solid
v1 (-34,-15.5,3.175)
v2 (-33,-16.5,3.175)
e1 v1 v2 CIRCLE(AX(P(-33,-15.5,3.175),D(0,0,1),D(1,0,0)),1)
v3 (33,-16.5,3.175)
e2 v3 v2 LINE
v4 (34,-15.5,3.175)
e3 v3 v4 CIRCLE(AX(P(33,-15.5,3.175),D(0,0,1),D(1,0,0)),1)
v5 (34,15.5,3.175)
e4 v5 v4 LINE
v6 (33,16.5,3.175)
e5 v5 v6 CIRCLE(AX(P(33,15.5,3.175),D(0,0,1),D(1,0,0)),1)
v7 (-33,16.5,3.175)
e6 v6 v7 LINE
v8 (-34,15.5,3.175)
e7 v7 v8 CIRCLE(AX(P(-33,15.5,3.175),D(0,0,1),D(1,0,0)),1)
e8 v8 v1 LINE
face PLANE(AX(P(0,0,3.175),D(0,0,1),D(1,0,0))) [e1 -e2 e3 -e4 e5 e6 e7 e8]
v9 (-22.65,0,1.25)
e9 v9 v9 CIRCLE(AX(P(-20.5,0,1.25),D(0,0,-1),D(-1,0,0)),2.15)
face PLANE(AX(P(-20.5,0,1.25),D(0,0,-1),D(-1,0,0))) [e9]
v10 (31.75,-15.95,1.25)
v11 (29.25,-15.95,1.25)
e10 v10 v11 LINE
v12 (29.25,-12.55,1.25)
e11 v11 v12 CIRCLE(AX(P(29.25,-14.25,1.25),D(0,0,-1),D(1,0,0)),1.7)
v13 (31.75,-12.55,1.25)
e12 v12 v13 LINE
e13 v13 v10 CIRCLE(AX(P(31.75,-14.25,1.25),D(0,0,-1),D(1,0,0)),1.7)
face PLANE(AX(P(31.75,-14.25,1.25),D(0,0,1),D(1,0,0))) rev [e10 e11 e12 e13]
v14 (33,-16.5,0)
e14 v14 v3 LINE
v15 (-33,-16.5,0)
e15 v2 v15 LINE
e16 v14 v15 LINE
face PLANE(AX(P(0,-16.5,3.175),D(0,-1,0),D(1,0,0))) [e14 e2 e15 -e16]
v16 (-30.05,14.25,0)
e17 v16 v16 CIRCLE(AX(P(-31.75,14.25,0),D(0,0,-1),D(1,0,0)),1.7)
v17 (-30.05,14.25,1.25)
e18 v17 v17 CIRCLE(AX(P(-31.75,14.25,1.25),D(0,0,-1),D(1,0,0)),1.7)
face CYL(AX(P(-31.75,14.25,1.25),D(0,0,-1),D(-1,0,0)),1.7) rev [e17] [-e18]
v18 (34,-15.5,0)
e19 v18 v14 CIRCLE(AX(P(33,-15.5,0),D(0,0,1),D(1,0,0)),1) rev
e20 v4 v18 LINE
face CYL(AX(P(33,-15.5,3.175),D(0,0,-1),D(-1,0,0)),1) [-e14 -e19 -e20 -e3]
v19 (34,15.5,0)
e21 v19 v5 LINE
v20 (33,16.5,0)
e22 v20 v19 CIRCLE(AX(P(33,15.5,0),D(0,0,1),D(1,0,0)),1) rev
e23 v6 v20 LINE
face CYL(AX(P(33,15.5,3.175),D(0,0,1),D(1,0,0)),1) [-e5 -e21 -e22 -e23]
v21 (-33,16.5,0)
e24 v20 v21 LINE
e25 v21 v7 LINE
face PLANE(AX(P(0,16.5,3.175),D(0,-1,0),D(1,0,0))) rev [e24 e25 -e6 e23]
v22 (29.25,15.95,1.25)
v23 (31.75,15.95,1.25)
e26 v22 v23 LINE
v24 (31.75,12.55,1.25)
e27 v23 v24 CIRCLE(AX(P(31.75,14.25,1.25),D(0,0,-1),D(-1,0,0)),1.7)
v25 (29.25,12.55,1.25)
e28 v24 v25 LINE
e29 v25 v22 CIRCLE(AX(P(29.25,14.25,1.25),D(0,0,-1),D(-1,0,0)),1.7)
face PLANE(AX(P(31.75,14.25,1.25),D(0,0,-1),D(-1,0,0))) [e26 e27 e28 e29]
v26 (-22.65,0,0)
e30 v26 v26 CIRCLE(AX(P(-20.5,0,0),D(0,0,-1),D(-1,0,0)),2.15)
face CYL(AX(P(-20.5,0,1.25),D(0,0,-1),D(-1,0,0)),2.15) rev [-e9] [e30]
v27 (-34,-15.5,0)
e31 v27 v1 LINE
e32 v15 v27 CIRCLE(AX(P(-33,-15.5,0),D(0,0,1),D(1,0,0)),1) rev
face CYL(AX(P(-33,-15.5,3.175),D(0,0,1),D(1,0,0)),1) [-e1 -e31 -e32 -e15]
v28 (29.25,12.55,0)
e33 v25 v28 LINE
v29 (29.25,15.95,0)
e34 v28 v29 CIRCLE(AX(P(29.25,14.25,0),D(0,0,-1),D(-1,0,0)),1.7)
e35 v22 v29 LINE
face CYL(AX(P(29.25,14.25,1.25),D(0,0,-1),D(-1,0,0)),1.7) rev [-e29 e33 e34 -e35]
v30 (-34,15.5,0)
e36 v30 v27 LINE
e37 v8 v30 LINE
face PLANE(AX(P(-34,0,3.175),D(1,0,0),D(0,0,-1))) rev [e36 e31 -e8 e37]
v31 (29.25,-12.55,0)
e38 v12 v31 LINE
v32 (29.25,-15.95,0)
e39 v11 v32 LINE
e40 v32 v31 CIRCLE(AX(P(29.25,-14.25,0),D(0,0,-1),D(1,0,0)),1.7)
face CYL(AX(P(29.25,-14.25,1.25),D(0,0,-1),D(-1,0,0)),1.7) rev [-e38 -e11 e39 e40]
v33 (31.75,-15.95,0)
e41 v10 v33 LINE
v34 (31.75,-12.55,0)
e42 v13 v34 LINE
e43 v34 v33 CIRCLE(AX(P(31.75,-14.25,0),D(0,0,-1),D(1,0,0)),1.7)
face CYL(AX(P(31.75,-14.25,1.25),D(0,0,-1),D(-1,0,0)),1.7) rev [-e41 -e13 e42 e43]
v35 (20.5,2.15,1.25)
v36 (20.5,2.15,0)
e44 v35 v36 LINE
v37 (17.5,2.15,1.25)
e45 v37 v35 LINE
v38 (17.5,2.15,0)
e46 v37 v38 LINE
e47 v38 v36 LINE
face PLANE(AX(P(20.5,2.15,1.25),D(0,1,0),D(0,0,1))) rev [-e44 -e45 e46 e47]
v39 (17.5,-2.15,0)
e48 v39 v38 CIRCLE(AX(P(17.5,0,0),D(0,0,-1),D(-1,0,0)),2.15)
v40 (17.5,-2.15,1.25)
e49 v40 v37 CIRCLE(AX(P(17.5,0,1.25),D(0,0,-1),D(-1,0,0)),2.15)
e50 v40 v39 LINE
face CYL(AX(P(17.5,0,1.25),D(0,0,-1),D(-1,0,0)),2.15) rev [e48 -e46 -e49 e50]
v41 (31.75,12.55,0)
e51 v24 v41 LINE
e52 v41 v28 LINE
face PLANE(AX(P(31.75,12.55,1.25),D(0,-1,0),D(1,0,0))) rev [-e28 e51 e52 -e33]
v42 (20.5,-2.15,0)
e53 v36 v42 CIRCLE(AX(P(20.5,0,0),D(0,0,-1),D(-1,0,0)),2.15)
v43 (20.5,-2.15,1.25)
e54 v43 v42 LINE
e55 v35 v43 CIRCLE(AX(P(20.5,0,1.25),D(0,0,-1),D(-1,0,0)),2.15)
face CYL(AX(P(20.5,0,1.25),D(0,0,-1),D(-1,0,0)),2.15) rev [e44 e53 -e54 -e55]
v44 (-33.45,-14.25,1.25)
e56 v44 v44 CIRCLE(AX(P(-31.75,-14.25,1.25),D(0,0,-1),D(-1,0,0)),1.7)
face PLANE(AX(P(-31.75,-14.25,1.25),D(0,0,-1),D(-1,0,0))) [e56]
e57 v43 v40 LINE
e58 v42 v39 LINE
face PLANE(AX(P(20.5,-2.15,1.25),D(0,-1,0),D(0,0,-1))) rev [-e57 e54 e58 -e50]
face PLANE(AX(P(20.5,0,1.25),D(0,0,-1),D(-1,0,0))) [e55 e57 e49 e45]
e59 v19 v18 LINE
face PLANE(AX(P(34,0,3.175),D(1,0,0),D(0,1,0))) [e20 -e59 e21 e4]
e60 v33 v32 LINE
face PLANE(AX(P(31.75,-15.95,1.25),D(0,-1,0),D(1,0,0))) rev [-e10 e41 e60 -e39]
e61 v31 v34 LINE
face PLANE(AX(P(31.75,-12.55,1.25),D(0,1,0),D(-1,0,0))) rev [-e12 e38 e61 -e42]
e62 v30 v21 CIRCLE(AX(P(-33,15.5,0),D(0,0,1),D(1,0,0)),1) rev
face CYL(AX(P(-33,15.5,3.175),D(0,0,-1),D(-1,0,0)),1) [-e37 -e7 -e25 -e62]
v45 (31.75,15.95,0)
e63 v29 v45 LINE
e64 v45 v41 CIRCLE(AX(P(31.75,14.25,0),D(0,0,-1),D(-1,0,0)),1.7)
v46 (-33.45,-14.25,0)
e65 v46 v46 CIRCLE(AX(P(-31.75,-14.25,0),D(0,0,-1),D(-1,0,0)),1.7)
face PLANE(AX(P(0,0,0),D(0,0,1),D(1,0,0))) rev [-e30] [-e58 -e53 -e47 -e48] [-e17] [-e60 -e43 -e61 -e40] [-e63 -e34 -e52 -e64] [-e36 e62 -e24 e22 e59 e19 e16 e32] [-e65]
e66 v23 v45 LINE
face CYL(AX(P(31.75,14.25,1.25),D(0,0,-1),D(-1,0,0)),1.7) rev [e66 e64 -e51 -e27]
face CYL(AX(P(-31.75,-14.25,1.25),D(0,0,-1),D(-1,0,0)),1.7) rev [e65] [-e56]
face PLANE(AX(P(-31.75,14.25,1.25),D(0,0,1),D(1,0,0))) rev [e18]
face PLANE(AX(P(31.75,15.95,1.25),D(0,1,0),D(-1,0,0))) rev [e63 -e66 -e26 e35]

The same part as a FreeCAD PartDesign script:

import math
import FreeCAD as App
import Part
import Sketcher
Q = App.Units.Quantity


def edges_at(feature, points):
    """Names of the edges that pass closest to the given points."""
    edges = feature.Shape.Edges
    near = lambda p: min(range(len(edges)), key=lambda i: edges[i].distToShape(Part.Vertex(*p))[0])
    return sorted({f"Edge{near(p) + 1}" for p in points})

doc = App.newDocument("Part")
body = doc.addObject("PartDesign::Body", "Body")

# Sketch on XY plane
sketch1 = body.newObject("Sketcher::SketchObject", "Sketch")
sketch1.AttachmentSupport = (doc.getObject("XY_Plane"), [""])
sketch1.MapMode = "FlatFace"
sketch1.addGeometry([
    Part.LineSegment(App.Vector(-34, 16, 0), App.Vector(-34, -16, 0)),
    Part.LineSegment(App.Vector(-34, -16, 0), App.Vector(34, -16, 0)),
    Part.LineSegment(App.Vector(34, -16, 0), App.Vector(34, 16, 0)),
    Part.LineSegment(App.Vector(34, 16, 0), App.Vector(-34, 16, 0)),
], False)
sketch1.addConstraint([
    Sketcher.Constraint("Coincident", 0, 2, 1, 1),
    Sketcher.Constraint("Coincident", 1, 2, 2, 1),
    Sketcher.Constraint("Coincident", 2, 2, 3, 1),
    Sketcher.Constraint("Coincident", 3, 2, 0, 1),
    Sketcher.Constraint("Vertical", 0),
    Sketcher.Constraint("Horizontal", 1),
    Sketcher.Constraint("Vertical", 2),
    Sketcher.Constraint("Horizontal", 3),
    Sketcher.Constraint("Symmetric", 0, 2, 2, 2, -1, 1),
    Sketcher.Constraint("DistanceX", 1, 1, 1, 2, Q("68 mm")),
    Sketcher.Constraint("DistanceY", 0, 2, 0, 1, Q("33 mm")),
])
pad1 = body.newObject("PartDesign::Pad", "Pad")
pad1.Profile = sketch1
pad1.Length = 3.175
doc.recompute()

fillet = body.newObject("PartDesign::Fillet", "Fillet")
fillet.Base = (pad1, edges_at(pad1, [
    (34, 16.5, 1.587),
    (34, -16.5, 1.587),
    (-34, -16.5, 1.587),
    (-34, 16.5, 1.587),
]))
fillet.Radius = 1

# Sketch on XY plane
sketch2 = body.newObject("Sketcher::SketchObject", "Sketch001")
sketch2.AttachmentSupport = (doc.getObject("XY_Plane"), [""])
sketch2.MapMode = "FlatFace"
sketch2.addGeometry([
    Part.Circle(App.Vector(-20.5, 0, 0), App.Vector(0, 0, 1), 2.1),  # 0
    Part.Circle(App.Vector(-31.8, -14.2, 0), App.Vector(0, 0, 1), 1.7),  # 1
    Part.Circle(App.Vector(-31.8, 14.2, 0), App.Vector(0, 0, 1), 1.7),  # 2
    Part.LineSegment(App.Vector(29.2, 15.9, 0), App.Vector(31.8, 15.9, 0)),  # 3
    Part.ArcOfCircle(Part.Circle(App.Vector(31.8, 14.2, 0), App.Vector(0, 0, 1), 1.7), math.radians(-90), math.radians(90)),  # 4
    Part.LineSegment(App.Vector(31.8, 12.6, 0), App.Vector(29.2, 12.6, 0)),  # 5
    Part.ArcOfCircle(Part.Circle(App.Vector(29.2, 14.2, 0), App.Vector(0, 0, 1), 1.7), math.radians(90), math.radians(270)),  # 6
    Part.LineSegment(App.Vector(31.8, -15.9, 0), App.Vector(29.2, -15.9, 0)),  # 7
    Part.ArcOfCircle(Part.Circle(App.Vector(29.2, -14.2, 0), App.Vector(0, 0, 1), 1.7), math.radians(90), math.radians(270)),  # 8
    Part.LineSegment(App.Vector(29.2, -12.6, 0), App.Vector(31.8, -12.6, 0)),  # 9
    Part.ArcOfCircle(Part.Circle(App.Vector(31.8, -14.2, 0), App.Vector(0, 0, 1), 1.7), math.radians(-90), math.radians(90)),  # 10
    Part.LineSegment(App.Vector(17.5, 2.1, 0), App.Vector(20.5, 2.1, 0)),  # 11
    Part.ArcOfCircle(Part.Circle(App.Vector(20.5, 0, 0), App.Vector(0, 0, 1), 2.1), math.radians(-90), math.radians(90)),  # 12
    Part.LineSegment(App.Vector(20.5, -2.1, 0), App.Vector(17.5, -2.1, 0)),  # 13
    Part.ArcOfCircle(Part.Circle(App.Vector(17.5, 0, 0), App.Vector(0, 0, 1), 2.1), math.radians(90), math.radians(270)),  # 14
], False)
sketch2.addConstraint([
    Sketcher.Constraint("Tangent", 3, 2, 4, 2),
    Sketcher.Constraint("Tangent", 4, 1, 5, 1),
    Sketcher.Constraint("Tangent", 5, 2, 6, 2),
    Sketcher.Constraint("Tangent", 6, 1, 3, 1),
    Sketcher.Constraint("Tangent", 7, 2, 8, 2),
    Sketcher.Constraint("Tangent", 8, 1, 9, 1),
    Sketcher.Constraint("Tangent", 9, 2, 10, 2),
    Sketcher.Constraint("Tangent", 10, 1, 7, 1),
    Sketcher.Constraint("Tangent", 11, 2, 12, 2),
    Sketcher.Constraint("Tangent", 12, 1, 13, 1),
    Sketcher.Constraint("Tangent", 13, 2, 14, 2),
    Sketcher.Constraint("Tangent", 14, 1, 11, 1),
    Sketcher.Constraint("Horizontal", 3),
    Sketcher.Constraint("Horizontal", 5),
    Sketcher.Constraint("Horizontal", 7),
    Sketcher.Constraint("Horizontal", 9),
    Sketcher.Constraint("Horizontal", 11),
    Sketcher.Constraint("Horizontal", 13),
    Sketcher.Constraint("Equal", 1, 2),
    Sketcher.Constraint("Equal", 2, 4),
    Sketcher.Constraint("Equal", 6, 8),
    Sketcher.Constraint("Equal", 0, 12),
    Sketcher.Constraint("Symmetric", 1, 3, 4, 3, -1, 1),
    Sketcher.Constraint("Symmetric", 2, 3, 10, 3, -1, 1),
    Sketcher.Constraint("Symmetric", 0, 3, 12, 3, -1, 1),
    Sketcher.Constraint("Symmetric", 2, 3, 4, 3, -2),
    Sketcher.Constraint("PointOnObject", 0, 3, -1),
    Sketcher.Constraint("Vertical", 6, 3, 8, 3),
    Sketcher.Constraint("Diameter", 0, Q("4.3 mm")),
    Sketcher.Constraint("Diameter", 1, Q("3.4 mm")),
    Sketcher.Constraint("DistanceX", 11, 1, 11, 2, Q("3 mm")),
    Sketcher.Constraint("DistanceX", 3, 1, 3, 2, Q("2.5 mm")),
    Sketcher.Constraint("DistanceX", 2, 3, 6, 3, Q("61 mm")),
    Sketcher.Constraint("DistanceX", 0, 3, 12, 3, Q("41 mm")),
    Sketcher.Constraint("DistanceY", 1, 3, 2, 3, Q("28.5 mm")),
])
pocket1 = body.newObject("PartDesign::Pocket", "Pocket")
pocket1.Profile = sketch2
pocket1.Length = 1.25
pocket1.Reversed = True

doc.recompute()
